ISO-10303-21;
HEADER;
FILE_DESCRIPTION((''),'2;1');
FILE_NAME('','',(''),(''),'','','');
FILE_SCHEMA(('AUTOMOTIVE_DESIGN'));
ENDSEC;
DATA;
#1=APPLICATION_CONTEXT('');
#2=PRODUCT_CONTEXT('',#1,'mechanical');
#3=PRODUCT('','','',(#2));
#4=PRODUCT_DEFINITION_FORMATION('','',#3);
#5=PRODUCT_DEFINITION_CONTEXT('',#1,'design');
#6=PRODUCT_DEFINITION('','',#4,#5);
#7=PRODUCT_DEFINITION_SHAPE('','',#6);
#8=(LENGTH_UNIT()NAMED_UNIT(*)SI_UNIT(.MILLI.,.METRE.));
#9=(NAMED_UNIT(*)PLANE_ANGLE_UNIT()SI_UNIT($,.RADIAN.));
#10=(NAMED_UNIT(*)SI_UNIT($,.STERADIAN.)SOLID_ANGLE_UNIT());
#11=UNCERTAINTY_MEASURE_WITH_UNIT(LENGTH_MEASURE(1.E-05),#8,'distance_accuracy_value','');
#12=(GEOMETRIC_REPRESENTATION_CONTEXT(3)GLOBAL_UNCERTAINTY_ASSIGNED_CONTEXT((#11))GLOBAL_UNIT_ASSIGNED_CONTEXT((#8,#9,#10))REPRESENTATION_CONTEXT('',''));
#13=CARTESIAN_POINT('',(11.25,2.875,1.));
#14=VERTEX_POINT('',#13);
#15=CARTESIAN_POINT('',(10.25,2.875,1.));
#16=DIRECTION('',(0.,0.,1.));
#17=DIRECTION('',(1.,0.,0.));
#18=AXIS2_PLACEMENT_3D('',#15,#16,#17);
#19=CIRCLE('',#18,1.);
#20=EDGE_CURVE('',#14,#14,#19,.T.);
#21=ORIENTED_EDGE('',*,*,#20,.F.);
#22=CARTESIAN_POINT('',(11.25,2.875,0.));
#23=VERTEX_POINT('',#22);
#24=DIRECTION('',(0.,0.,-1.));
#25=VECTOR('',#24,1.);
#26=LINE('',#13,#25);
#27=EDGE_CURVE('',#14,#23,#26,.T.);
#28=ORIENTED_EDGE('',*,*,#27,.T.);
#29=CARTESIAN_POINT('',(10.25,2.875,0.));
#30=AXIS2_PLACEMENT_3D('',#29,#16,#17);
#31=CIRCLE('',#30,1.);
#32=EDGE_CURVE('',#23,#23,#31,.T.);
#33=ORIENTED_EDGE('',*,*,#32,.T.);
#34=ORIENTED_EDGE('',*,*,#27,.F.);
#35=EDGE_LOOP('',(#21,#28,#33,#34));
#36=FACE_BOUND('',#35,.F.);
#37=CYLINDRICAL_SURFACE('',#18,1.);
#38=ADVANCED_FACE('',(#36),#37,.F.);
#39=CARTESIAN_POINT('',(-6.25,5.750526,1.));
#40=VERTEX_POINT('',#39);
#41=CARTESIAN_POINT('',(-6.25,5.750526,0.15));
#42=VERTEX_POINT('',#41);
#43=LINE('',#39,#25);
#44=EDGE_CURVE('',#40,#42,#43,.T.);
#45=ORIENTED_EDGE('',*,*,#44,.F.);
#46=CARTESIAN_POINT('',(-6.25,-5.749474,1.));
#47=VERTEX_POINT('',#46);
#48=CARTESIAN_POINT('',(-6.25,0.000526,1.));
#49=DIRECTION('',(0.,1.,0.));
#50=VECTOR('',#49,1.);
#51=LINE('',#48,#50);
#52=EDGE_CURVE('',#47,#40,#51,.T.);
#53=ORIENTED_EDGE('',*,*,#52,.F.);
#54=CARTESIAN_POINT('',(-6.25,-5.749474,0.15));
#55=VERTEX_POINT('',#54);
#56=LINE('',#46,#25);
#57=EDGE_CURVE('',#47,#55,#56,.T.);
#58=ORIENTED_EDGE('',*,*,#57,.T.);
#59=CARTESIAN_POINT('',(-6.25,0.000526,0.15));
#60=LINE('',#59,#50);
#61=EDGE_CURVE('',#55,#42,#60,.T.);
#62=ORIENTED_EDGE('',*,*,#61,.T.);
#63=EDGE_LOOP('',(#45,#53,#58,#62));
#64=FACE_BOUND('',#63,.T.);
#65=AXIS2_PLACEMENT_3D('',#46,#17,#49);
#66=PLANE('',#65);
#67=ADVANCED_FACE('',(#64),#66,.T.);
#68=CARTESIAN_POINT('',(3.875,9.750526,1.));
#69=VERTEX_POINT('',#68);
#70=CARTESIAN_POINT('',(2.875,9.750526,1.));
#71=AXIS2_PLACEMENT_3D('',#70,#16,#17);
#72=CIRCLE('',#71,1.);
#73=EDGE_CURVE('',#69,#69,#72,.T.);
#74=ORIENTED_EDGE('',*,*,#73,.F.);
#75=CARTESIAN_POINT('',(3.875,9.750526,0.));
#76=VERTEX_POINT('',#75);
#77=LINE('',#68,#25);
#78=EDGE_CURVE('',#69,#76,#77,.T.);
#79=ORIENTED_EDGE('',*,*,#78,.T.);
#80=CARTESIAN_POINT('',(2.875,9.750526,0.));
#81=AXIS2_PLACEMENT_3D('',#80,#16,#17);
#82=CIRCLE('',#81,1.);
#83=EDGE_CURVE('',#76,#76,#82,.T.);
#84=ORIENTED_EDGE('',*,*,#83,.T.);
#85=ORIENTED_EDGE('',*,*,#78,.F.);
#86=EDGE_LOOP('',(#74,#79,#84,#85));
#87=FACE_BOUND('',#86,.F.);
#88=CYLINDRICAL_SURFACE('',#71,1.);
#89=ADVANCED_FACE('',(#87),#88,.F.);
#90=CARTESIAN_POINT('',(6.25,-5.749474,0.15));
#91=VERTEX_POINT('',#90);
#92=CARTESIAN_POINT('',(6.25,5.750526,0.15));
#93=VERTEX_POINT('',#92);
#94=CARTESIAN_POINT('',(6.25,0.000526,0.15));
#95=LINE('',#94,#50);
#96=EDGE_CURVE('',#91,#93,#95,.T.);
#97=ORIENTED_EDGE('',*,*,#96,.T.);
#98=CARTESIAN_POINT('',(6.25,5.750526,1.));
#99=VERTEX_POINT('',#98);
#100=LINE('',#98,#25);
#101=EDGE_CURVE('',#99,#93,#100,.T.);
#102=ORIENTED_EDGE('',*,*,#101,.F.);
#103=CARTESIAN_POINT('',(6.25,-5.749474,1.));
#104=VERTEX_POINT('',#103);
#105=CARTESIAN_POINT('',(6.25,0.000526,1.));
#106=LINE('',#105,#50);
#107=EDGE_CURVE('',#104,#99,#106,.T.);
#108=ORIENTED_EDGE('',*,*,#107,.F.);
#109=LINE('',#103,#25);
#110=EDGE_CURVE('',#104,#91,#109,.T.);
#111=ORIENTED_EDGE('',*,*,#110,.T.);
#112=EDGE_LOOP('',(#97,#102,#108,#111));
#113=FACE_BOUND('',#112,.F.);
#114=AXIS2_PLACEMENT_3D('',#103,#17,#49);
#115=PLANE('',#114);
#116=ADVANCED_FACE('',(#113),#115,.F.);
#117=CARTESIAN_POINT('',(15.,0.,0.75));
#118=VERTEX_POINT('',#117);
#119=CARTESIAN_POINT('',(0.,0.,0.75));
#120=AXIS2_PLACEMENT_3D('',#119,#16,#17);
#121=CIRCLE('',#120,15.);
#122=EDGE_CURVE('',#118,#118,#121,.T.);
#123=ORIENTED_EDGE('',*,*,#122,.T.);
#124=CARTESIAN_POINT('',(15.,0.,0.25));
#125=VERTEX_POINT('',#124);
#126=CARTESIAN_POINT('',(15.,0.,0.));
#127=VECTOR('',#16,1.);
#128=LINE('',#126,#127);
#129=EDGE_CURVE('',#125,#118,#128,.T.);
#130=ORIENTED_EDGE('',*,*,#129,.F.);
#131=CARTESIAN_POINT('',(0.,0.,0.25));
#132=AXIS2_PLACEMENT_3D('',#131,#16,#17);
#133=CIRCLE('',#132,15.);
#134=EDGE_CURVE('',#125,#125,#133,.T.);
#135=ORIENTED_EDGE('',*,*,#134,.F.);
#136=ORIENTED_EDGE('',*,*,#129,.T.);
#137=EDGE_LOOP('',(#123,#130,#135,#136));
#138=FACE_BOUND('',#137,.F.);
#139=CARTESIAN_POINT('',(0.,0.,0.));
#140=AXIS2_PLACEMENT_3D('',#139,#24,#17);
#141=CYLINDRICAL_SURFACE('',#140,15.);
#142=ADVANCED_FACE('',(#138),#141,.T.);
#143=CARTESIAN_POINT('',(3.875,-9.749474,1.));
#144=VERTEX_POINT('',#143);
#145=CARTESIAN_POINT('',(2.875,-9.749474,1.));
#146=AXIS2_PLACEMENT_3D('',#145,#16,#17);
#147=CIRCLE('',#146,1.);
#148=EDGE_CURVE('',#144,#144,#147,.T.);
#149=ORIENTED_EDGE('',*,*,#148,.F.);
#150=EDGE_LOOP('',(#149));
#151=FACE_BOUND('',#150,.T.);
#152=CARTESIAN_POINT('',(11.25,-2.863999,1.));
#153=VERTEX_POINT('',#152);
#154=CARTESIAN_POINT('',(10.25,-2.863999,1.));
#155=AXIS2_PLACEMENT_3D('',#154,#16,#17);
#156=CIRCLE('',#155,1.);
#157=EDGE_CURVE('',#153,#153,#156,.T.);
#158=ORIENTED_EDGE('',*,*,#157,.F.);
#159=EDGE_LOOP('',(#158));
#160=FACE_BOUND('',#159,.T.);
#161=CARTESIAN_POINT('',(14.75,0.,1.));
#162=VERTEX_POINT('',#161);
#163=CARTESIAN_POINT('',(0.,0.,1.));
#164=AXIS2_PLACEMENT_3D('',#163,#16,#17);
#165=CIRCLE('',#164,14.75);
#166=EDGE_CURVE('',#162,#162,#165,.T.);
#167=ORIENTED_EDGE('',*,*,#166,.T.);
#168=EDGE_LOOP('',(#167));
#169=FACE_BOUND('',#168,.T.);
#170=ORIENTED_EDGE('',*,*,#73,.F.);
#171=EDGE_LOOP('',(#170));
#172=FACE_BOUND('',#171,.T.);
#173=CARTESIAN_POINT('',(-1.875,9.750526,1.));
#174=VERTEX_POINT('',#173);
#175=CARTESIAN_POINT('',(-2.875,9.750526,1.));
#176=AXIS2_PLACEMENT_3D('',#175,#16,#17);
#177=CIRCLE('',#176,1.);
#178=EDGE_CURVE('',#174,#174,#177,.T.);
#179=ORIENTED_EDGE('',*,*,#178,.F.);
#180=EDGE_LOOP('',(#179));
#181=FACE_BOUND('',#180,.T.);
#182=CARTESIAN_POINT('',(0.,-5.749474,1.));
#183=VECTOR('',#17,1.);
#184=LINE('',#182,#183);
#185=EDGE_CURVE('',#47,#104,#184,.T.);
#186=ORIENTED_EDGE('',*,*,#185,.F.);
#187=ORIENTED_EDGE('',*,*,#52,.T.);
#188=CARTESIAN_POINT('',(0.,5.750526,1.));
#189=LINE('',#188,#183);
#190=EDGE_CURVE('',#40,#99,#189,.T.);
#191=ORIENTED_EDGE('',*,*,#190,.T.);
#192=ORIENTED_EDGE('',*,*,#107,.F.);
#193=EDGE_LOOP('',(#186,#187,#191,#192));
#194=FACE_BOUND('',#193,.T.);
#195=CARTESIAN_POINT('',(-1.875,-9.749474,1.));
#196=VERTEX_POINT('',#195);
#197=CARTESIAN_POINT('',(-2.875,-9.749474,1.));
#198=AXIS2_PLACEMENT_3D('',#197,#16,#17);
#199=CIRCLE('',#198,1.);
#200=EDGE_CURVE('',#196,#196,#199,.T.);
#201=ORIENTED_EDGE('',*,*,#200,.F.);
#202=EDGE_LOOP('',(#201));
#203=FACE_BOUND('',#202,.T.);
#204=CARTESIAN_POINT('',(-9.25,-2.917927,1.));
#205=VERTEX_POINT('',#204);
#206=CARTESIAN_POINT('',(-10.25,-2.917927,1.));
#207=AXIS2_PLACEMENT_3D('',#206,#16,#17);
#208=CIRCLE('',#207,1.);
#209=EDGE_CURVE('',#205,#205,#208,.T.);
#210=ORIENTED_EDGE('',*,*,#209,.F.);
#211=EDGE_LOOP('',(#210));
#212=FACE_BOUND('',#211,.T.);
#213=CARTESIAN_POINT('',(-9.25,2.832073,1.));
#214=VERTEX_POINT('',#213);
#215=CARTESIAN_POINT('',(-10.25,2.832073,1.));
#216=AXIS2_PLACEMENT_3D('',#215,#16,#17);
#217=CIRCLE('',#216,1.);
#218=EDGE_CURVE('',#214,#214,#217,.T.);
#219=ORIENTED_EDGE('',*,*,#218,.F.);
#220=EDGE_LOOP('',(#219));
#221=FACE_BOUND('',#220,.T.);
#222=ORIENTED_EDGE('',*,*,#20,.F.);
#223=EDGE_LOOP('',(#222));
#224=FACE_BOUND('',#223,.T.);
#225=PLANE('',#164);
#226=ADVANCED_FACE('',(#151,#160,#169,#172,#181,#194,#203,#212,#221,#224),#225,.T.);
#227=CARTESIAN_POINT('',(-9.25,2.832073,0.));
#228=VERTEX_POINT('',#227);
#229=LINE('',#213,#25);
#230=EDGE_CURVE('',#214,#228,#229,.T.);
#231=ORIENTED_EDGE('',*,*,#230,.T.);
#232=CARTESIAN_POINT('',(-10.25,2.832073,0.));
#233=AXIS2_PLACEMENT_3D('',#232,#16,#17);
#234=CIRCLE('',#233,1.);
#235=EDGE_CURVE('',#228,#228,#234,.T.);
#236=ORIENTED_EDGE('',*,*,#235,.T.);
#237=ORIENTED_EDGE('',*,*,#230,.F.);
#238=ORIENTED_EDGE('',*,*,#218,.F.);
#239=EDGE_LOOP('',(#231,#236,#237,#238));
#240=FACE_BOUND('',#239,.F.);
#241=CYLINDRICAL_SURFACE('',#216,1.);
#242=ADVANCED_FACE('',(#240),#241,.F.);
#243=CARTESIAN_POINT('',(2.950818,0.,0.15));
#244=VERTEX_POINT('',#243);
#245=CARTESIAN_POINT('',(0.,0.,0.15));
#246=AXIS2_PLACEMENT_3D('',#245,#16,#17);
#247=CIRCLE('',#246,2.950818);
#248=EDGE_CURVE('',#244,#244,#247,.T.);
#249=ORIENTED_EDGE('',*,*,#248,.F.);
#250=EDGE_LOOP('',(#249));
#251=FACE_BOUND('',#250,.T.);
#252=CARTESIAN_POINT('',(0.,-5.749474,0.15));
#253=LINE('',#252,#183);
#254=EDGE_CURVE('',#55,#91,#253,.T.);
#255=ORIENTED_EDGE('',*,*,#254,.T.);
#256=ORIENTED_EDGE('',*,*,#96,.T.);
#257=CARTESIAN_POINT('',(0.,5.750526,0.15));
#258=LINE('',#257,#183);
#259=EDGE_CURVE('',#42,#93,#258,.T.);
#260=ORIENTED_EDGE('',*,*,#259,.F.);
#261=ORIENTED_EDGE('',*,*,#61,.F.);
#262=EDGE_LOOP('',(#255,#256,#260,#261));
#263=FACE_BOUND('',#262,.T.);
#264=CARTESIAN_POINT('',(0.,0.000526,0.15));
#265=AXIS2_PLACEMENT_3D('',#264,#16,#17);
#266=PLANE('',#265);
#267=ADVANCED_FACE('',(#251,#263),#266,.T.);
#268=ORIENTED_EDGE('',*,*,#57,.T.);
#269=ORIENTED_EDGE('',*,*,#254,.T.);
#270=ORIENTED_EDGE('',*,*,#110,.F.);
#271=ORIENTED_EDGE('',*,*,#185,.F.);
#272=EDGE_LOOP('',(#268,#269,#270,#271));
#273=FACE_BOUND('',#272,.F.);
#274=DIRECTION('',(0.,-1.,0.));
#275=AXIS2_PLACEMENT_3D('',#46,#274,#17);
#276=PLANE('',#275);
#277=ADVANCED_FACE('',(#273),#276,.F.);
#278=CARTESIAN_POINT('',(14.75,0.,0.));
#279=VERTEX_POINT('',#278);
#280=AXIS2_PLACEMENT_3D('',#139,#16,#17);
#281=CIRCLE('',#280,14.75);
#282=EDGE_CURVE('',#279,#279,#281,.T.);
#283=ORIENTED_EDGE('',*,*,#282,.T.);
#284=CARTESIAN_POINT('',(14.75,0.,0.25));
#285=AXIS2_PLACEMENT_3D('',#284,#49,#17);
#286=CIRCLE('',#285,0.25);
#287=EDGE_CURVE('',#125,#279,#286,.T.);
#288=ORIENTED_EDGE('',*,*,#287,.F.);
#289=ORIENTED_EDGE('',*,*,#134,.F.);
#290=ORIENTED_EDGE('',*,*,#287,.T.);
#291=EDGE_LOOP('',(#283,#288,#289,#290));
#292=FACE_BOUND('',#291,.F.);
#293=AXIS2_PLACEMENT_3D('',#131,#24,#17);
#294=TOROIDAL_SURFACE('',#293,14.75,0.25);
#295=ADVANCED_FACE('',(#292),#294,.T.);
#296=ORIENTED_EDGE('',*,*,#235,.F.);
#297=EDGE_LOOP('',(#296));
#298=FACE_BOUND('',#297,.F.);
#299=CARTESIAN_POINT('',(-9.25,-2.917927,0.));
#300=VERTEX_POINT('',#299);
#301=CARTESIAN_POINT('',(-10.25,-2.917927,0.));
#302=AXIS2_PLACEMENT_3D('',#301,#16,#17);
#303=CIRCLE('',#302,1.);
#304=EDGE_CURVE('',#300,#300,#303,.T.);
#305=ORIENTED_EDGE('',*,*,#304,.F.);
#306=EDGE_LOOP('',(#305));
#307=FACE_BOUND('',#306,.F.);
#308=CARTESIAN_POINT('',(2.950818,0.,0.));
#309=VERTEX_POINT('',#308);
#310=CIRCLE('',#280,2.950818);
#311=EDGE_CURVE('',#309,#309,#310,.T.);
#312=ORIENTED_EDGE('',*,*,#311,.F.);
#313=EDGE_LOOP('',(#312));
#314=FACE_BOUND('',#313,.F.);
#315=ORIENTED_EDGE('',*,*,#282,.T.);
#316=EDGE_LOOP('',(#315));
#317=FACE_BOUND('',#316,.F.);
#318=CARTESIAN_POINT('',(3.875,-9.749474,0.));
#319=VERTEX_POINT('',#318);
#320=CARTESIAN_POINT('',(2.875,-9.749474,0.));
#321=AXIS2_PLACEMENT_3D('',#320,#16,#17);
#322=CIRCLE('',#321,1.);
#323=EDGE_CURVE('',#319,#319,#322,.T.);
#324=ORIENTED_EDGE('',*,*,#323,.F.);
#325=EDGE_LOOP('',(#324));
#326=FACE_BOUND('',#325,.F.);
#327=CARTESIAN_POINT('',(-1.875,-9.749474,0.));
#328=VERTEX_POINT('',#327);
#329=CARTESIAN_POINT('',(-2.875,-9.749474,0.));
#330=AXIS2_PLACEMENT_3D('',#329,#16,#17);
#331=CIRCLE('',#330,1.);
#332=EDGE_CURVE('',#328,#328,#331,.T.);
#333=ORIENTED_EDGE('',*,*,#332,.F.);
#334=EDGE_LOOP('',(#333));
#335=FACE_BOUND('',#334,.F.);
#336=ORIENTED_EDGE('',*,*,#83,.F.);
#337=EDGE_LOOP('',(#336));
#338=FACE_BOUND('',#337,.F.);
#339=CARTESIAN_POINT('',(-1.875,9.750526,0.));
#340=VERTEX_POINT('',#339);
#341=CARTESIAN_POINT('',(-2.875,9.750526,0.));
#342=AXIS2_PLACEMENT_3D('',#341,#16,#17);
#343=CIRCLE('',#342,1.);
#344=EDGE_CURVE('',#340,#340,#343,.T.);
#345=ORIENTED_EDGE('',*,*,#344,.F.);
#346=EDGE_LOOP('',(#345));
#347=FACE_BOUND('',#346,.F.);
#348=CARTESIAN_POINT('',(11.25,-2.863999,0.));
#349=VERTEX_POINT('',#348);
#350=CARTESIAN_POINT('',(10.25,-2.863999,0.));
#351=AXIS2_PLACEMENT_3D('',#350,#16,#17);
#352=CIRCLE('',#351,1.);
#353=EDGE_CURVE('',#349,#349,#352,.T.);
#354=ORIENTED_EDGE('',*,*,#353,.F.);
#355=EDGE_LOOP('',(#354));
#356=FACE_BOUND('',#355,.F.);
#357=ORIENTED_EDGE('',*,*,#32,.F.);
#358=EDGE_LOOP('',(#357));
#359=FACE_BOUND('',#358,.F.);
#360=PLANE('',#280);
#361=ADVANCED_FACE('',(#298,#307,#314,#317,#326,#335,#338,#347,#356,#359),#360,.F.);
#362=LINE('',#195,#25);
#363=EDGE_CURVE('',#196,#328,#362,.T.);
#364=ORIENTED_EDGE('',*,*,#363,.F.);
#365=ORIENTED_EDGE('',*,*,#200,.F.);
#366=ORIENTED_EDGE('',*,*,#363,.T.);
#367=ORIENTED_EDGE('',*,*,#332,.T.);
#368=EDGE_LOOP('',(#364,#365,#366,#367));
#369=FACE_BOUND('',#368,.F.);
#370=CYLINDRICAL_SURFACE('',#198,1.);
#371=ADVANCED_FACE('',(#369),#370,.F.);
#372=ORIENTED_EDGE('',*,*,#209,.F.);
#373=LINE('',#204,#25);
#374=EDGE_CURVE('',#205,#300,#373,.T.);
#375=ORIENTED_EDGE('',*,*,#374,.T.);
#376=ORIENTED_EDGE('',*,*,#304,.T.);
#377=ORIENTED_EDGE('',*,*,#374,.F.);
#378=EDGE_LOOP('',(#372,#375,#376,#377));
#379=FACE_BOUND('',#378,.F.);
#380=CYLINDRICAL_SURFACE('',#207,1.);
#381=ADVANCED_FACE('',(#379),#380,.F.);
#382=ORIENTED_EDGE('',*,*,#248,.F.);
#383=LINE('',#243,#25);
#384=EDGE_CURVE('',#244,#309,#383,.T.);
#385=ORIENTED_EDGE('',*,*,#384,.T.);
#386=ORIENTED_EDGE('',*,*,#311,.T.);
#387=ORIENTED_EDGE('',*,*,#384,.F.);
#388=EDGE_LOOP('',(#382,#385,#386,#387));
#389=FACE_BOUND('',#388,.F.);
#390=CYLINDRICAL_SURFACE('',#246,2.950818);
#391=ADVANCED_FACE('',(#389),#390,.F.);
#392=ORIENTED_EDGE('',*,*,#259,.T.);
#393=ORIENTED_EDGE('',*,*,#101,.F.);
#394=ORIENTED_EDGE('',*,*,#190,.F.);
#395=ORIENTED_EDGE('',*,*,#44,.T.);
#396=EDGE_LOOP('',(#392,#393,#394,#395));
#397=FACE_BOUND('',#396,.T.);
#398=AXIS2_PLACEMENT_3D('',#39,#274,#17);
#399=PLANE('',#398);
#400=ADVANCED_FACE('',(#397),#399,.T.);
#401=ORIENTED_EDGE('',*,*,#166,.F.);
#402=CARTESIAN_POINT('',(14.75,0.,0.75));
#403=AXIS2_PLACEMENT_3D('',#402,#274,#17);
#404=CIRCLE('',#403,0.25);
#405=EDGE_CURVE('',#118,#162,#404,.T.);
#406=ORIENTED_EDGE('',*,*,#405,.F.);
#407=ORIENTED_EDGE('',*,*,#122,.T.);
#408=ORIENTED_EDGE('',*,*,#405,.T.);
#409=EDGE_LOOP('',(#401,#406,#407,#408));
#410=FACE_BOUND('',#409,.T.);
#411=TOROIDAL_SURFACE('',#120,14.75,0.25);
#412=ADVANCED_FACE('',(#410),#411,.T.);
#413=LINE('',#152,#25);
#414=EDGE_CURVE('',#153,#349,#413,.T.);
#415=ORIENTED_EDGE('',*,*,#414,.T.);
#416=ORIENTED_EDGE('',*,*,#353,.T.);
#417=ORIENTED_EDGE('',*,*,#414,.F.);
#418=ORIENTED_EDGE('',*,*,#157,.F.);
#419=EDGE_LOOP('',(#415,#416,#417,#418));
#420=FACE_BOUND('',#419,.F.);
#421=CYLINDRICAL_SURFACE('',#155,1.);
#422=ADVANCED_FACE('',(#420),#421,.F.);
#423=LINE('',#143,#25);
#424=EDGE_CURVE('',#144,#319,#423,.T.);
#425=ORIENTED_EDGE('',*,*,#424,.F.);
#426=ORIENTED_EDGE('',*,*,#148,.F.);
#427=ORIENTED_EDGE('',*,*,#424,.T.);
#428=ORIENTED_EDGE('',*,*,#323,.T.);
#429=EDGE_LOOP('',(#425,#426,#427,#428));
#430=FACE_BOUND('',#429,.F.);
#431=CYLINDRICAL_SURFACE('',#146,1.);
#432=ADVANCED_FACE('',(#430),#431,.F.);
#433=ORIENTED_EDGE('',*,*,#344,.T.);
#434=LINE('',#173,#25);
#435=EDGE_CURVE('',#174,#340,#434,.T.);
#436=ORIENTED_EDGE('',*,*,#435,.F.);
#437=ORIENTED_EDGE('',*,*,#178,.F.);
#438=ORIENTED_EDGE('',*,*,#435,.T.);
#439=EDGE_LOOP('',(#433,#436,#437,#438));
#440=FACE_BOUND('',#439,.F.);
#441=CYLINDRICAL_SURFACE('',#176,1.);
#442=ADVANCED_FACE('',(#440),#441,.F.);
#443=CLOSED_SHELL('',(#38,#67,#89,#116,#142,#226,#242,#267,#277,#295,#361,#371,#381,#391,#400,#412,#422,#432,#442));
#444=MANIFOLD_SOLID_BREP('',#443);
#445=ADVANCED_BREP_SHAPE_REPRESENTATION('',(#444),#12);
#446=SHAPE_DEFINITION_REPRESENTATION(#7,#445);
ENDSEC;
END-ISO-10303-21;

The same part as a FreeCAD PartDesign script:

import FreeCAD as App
import Part
import Sketcher
Q = App.Units.Quantity


def edges_at(feature, points):
    """Names of the edges that pass closest to the given points."""
    edges = feature.Shape.Edges
    near = lambda p: min(range(len(edges)), key=lambda i: edges[i].distToShape(Part.Vertex(*p))[0])
    return sorted({f"Edge{near(p) + 1}" for p in points})

doc = App.newDocument("Part")
body = doc.addObject("PartDesign::Body", "Body")

# Sketch on XY plane
sketch1 = body.newObject("Sketcher::SketchObject", "Sketch")
sketch1.AttachmentSupport = (doc.getObject("XY_Plane"), [""])
sketch1.MapMode = "FlatFace"
sketch1.addGeometry(Part.Circle(App.Vector(0, 0, 0), App.Vector(0, 0, 1), 15), False)
sketch1.addConstraint([
    Sketcher.Constraint("Coincident", 0, 3, -1, 1),
    Sketcher.Constraint("Diameter", 0, Q("30 mm")),
])
pad1 = body.newObject("PartDesign::Pad", "Pad")
pad1.Profile = sketch1
pad1.Length = 1

# Sketch on XY plane
sketch2 = body.newObject("Sketcher::SketchObject", "Sketch001")
sketch2.AttachmentSupport = (doc.getObject("XY_Plane"), [""])
sketch2.MapMode = "FlatFace"
sketch2.AttachmentOffset = App.Placement(App.Vector(0, 0, 1), App.Rotation())
sketch2.addGeometry([
    Part.LineSegment(App.Vector(-6.25, 5.750526, 0), App.Vector(-6.25, -5.749474, 0)),
    Part.LineSegment(App.Vector(-6.25, -5.749474, 0), App.Vector(6.25, -5.749474, 0)),
    Part.LineSegment(App.Vector(6.25, -5.749474, 0), App.Vector(6.25, 5.750526, 0)),
    Part.LineSegment(App.Vector(6.25, 5.750526, 0), App.Vector(-6.25, 5.750526, 0)),
], False)
sketch2.addConstraint([
    Sketcher.Constraint("Coincident", 0, 2, 1, 1),
    Sketcher.Constraint("Coincident", 1, 2, 2, 1),
    Sketcher.Constraint("Coincident", 2, 2, 3, 1),
    Sketcher.Constraint("Coincident", 3, 2, 0, 1),
    Sketcher.Constraint("Vertical", 0),
    Sketcher.Constraint("Horizontal", 1),
    Sketcher.Constraint("Vertical", 2),
    Sketcher.Constraint("Horizontal", 3),
    Sketcher.Constraint("DistanceX", 1, 1, 1, 2, Q("12.5 mm")),
    Sketcher.Constraint("DistanceY", 0, 2, 0, 1, Q("11.5 mm")),
    Sketcher.Constraint("DistanceX", 0, 2, -1, 1, Q("6.25 mm")),
    Sketcher.Constraint("DistanceY", 0, 2, -1, 1, Q("5.749474 mm")),
])
pocket1 = body.newObject("PartDesign::Pocket", "Pocket")
pocket1.Profile = sketch2
pocket1.Length = 0.85

# Sketch on XY plane
sketch3 = body.newObject("Sketcher::SketchObject", "Sketch002")
sketch3.AttachmentSupport = (doc.getObject("XY_Plane"), [""])
sketch3.MapMode = "FlatFace"
sketch3.AttachmentOffset = App.Placement(App.Vector(0, 0, 0.15), App.Rotation())
sketch3.addGeometry(Part.Circle(App.Vector(0, 0, 0), App.Vector(0, 0, 1), 2.950818), False)
sketch3.addConstraint([
    Sketcher.Constraint("Coincident", 0, 3, -1, 1),
    Sketcher.Constraint("Diameter", 0, Q("5.901636 mm")),
])
pocket2 = body.newObject("PartDesign::Pocket", "Pocket001")
pocket2.Profile = sketch3
pocket2.Length = 0.15
doc.recompute()

fillet = body.newObject("PartDesign::Fillet", "Fillet")
fillet.Base = (pocket2, edges_at(pocket2, [(-15, 0, 1), (-15, 0, 0)]))
fillet.Radius = 0.25

# Sketch on XY plane
sketch4 = body.newObject("Sketcher::SketchObject", "Sketch003")
sketch4.AttachmentSupport = (doc.getObject("XY_Plane"), [""])
sketch4.MapMode = "FlatFace"
sketch4.AttachmentOffset = App.Placement(App.Vector(0, 0, 1), App.Rotation())
sketch4.addGeometry([
    Part.Circle(App.Vector(-10.25, 2.832073, 0), App.Vector(0, 0, 1), 1),  # 0
    Part.Circle(App.Vector(-10.25, -2.917927, 0), App.Vector(0, 0, 1), 1),  # 1
    Part.Circle(App.Vector(-2.875, 9.750526, 0), App.Vector(0, 0, 1), 1),  # 2
    Part.Circle(App.Vector(2.875, 9.750526, 0), App.Vector(0, 0, 1), 1),  # 3
    Part.Circle(App.Vector(10.25, 2.875, 0), App.Vector(0, 0, 1), 1),  # 4
    Part.Circle(App.Vector(10.25, -2.863999, 0), App.Vector(0, 0, 1), 1),  # 5
    Part.Circle(App.Vector(2.875, -9.749474, 0), App.Vector(0, 0, 1), 1),  # 6
    Part.Circle(App.Vector(-2.875, -9.749474, 0), App.Vector(0, 0, 1), 1),  # 7
], False)
sketch4.addConstraint([
    Sketcher.Constraint("Equal", 0, 1),
    Sketcher.Constraint("Equal", 1, 2),
    Sketcher.Constraint("Equal", 2, 3),
    Sketcher.Constraint("Equal", 3, 4),
    Sketcher.Constraint("Equal", 4, 5),
    Sketcher.Constraint("Equal", 5, 6),
    Sketcher.Constraint("Equal", 6, 7),
    Sketcher.Constraint("Symmetric", 2, 3, 3, 3, -2),
    Sketcher.Constraint("Symmetric", 6, 3, 7, 3, -2),
    Sketcher.Constraint("Vertical", 0, 3, 1, 3),
    Sketcher.Constraint("Vertical", 4, 3, 5, 3),
    Sketcher.Constraint("Vertical", 3, 3, 6, 3),
    Sketcher.Constraint("Diameter", 0, Q("2 mm")),
    Sketcher.Constraint("DistanceX", 0, 3, 4, 3, Q("20.5 mm")),
    Sketcher.Constraint("DistanceY", 6, 3, 3, 3, Q("19.5 mm")),
    Sketcher.Constraint("DistanceX", 0, 3, -1, 1, Q("10.25 mm")),
    Sketcher.Constraint("DistanceY", 1, 3, 0, 3, Q("5.75 mm")),
    Sketcher.Constraint("DistanceX", 2, 3, 3, 3, Q("5.75 mm")),
    Sketcher.Constraint("DistanceY", -1, 1, 4, 3, Q("2.875 mm")),
    Sketcher.Constraint("DistanceY", 5, 3, -1, 1, Q("2.863999 mm")),
    Sketcher.Constraint("DistanceY", -1, 1, 0, 3, Q("2.832073 mm")),
    Sketcher.Constraint("DistanceY", -1, 1, 2, 3, Q("9.750526 mm")),
])
pocket3 = body.newObject("PartDesign::Pocket", "Pocket002")
pocket3.Profile = sketch4
pocket3.Length = 1

doc.recompute()
